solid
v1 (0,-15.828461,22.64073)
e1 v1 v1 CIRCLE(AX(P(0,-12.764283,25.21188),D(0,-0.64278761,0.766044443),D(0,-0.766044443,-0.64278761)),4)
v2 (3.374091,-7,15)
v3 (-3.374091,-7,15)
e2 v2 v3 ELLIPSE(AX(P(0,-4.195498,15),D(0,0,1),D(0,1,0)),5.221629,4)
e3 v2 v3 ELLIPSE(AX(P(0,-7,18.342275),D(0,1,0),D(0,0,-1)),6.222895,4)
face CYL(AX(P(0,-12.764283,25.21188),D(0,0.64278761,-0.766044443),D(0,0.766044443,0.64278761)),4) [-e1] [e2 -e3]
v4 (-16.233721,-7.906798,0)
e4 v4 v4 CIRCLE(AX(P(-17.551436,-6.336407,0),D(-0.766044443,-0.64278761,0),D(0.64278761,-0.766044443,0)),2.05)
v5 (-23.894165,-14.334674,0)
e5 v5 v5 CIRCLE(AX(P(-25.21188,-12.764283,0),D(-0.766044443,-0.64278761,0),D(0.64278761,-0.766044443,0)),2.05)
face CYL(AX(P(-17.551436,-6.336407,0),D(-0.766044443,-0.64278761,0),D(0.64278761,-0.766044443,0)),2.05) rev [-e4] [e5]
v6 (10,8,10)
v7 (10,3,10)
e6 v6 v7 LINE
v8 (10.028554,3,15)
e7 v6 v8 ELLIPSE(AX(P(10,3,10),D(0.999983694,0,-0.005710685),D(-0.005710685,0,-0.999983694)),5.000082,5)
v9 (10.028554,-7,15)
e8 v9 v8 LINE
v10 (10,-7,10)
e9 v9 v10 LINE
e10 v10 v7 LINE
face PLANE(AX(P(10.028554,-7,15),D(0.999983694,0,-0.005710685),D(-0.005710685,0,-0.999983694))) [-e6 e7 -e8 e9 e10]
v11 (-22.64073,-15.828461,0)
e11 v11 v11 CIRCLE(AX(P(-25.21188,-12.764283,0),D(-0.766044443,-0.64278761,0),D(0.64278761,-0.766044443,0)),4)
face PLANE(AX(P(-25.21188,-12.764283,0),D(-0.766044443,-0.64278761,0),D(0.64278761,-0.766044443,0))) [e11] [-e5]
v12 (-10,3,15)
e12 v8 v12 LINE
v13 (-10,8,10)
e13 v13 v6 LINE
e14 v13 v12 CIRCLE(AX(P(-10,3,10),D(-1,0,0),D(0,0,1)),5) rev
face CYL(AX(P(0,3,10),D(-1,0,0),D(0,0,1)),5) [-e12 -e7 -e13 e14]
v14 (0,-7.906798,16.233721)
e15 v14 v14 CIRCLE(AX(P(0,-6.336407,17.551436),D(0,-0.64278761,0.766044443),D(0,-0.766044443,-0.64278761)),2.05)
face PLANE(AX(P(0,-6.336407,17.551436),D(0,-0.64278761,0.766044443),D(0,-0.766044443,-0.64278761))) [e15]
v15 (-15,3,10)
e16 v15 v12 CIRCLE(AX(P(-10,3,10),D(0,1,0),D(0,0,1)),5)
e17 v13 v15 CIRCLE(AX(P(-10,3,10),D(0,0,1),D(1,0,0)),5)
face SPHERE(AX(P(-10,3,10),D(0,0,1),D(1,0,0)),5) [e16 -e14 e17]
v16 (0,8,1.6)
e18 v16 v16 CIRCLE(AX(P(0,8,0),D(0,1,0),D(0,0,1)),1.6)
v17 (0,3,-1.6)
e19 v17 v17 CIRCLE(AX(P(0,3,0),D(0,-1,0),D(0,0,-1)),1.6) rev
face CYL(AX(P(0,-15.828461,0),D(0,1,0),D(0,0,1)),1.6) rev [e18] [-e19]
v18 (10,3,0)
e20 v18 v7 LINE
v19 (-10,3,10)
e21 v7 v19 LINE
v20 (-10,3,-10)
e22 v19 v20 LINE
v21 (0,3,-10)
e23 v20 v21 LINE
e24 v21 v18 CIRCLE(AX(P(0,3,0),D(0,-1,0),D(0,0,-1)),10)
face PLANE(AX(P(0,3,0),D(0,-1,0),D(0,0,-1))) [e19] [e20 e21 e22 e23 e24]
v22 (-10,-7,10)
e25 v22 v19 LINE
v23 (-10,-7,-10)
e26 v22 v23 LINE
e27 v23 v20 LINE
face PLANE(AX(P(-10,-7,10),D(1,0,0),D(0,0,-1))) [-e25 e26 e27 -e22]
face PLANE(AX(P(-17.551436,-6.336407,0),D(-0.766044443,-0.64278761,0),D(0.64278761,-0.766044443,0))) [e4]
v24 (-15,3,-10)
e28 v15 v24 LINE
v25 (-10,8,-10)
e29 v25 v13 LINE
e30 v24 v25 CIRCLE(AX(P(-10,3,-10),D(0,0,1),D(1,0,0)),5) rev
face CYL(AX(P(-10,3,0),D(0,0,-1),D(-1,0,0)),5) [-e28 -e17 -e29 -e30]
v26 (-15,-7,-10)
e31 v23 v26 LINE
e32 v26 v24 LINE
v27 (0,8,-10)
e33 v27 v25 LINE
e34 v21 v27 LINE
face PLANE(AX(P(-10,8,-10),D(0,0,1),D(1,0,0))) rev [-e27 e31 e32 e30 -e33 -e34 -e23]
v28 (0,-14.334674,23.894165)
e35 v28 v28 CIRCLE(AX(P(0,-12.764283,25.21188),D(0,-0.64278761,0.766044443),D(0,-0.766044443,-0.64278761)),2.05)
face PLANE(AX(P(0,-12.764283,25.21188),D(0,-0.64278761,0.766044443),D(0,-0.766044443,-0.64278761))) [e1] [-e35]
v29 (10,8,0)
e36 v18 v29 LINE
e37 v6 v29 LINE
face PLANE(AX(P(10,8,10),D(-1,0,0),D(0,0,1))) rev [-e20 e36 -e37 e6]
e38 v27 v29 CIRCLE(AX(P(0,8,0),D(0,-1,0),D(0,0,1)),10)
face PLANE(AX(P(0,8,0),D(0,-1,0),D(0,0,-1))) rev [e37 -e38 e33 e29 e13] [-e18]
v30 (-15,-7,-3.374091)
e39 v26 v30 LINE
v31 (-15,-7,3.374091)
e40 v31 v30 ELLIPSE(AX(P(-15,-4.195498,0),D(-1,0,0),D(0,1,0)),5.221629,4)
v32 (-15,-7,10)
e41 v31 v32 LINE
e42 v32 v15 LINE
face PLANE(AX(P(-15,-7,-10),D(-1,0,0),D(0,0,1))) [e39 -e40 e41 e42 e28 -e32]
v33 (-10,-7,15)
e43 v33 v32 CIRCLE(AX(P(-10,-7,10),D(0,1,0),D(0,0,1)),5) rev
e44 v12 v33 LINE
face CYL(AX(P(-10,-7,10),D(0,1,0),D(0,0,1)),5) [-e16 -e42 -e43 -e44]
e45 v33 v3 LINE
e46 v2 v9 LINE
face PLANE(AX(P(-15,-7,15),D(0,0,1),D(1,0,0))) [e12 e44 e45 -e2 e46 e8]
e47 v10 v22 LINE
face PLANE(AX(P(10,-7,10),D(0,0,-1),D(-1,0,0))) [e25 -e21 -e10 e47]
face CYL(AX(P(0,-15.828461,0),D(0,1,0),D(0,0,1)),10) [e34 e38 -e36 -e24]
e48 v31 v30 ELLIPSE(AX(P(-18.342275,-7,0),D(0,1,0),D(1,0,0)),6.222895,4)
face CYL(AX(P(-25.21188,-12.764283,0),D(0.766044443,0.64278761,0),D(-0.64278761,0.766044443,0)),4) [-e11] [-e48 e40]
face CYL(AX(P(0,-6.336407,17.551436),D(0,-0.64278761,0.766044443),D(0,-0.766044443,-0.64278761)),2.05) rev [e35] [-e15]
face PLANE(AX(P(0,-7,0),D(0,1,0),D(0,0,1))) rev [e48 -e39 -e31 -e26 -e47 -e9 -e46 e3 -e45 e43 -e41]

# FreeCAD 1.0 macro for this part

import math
import FreeCAD as App
import Part
import Sketcher
Q = App.Units.Quantity


def edges_at(feature, points):
    """Names of the edges that pass closest to the given points."""
    edges = feature.Shape.Edges
    near = lambda p: min(range(len(edges)), key=lambda i: edges[i].distToShape(Part.Vertex(*p))[0])
    return sorted({f"Edge{near(p) + 1}" for p in points})


def add_polygon(sketch, points):
    """Adds a closed chain of lines whose ends are joined by coincident constraints."""
    first, n = sketch.GeometryCount, len(points)
    for a, b in zip(points, points[1:] + points[:1]):
        sketch.addGeometry(Part.LineSegment(App.Vector(*a, 0), App.Vector(*b, 0)), False)
    for i in range(n):
        sketch.addConstraint(Sketcher.Constraint("Coincident", first + i, 2, first + (i + 1) % n, 1))

doc = App.newDocument("Part")
body = doc.addObject("PartDesign::Body", "Body")

# Sketch on XZ plane
sketch1 = doc.addObject("Sketcher::SketchObject", "Sketch")
body.addObject(sketch1)
sketch1.AttachmentSupport = (doc.XZ_Plane, [""])
sketch1.MapMode = "FlatFace"
add_polygon(sketch1, [(-10, -10), (-10, 10), (10, 10), (10, -10)])  # lines 0-3
sketch1.addConstraint([
    Sketcher.Constraint("Vertical", 0),
    Sketcher.Constraint("Horizontal", 1),
    Sketcher.Constraint("Vertical", 2),
    Sketcher.Constraint("Horizontal", 3),
    Sketcher.Constraint("Symmetric", 0, 2, 2, 2, -1, 1),
    Sketcher.Constraint("Equal", 3, 0),
    Sketcher.Constraint("DistanceX", 1, 1, 1, 2, Q("20 mm")),
])
pad1 = doc.addObject("PartDesign::Pad", "Pad")
body.addObject(pad1)
pad1.Profile = sketch1
pad1.Length = 8
pad1.Reversed = True

# Sketch on an angled plane
sketch2 = doc.addObject("Sketcher::SketchObject", "Sketch001")
body.addObject(sketch2)
sketch2.Placement = App.Placement(App.Vector(0, -1.618631, 1.92901), App.Rotation(App.Vector(1, 0, 0), App.Vector(0, 0.766044443, 0.64278761), App.Vector(0, -0.64278761, 0.766044443), "ZXY"))
sketch2.addGeometry(Part.Circle(App.Vector(0, 6.4, 0), App.Vector(0, 0, 1), 4), False)
sketch2.addConstraint([
    Sketcher.Constraint("PointOnObject", 0, 3, -2),
    Sketcher.Constraint("Diameter", 0, Q("8 mm")),
    Sketcher.Constraint("DistanceY", -1, 1, 0, 3, Q("6.427876 mm")),
])
pad2 = doc.addObject("PartDesign::Pad", "Pad001")
body.addObject(pad2)
pad2.Profile = sketch2
pad2.Length = 25

# Sketch on an angled plane
sketch3 = doc.addObject("Sketcher::SketchObject", "Sketch002")
body.addObject(sketch3)
sketch3.Placement = App.Placement(App.Vector(-1.92901, -1.618631, 0), App.Rotation(App.Vector(0, 0, 1), App.Vector(-0.64278761, 0.766044443, 0), App.Vector(-0.766044443, -0.64278761, 0), "ZXY"))
sketch3.addGeometry(Part.Circle(App.Vector(0, 6.4, 0), App.Vector(0, 0, 1), 4), False)
sketch3.addConstraint([
    Sketcher.Constraint("PointOnObject", 0, 3, -2),
    Sketcher.Constraint("Diameter", 0, Q("8 mm")),
    Sketcher.Constraint("DistanceY", -1, 1, 0, 3, Q("6.427876 mm")),
])
pad3 = doc.addObject("PartDesign::Pad", "Pad002")
body.addObject(pad3)
pad3.Profile = sketch3
pad3.Length = 25

# Sketch on XZ plane
sketch4 = doc.addObject("Sketcher::SketchObject", "Sketch003")
body.addObject(sketch4)
sketch4.AttachmentSupport = (doc.XZ_Plane, [""])
sketch4.MapMode = "FlatFace"
sketch4.AttachmentOffset = App.Placement(App.Vector(0, 0, -8), App.Rotation())
sketch4.addGeometry([
    Part.Circle(App.Vector(0, 0, 0), App.Vector(0, 0, 1), 1.6),
    Part.LineSegment(App.Vector(10, -10, 0), App.Vector(0, -10, 0)),
    Part.ArcOfCircle(Part.Circle(App.Vector(0, 0, 0), App.Vector(0, 0, 1), 10), math.radians(-90), math.radians(0)),
    Part.LineSegment(App.Vector(10, 0, 0), App.Vector(10, -10, 0)),
], False)
sketch4.addConstraint([
    Sketcher.Constraint("Tangent", 1, 2, 2, 1),
    Sketcher.Constraint("Tangent", 2, 2, 3, 1),
    Sketcher.Constraint("Coincident", 3, 2, 1, 1),
    Sketcher.Constraint("Horizontal", 1),
    Sketcher.Constraint("Vertical", 3),
    Sketcher.Constraint("Coincident", 0, 3, -1, 1),
    Sketcher.Constraint("Coincident", 2, 3, -1, 1),
    Sketcher.Constraint("Radius", 2, Q("10 mm")),
    Sketcher.Constraint("Diameter", 0, Q("3.2 mm")),
])
pocket1 = doc.addObject("PartDesign::Pocket", "Pocket")
body.addObject(pocket1)
pocket1.Profile = sketch4
pocket1.Type = "ThroughAll"
pocket1.Reversed = True

# Sketch on XZ plane
sketch5 = doc.addObject("Sketcher::SketchObject", "Sketch004")
body.addObject(sketch5)
sketch5.AttachmentSupport = (doc.XZ_Plane, [""])
sketch5.MapMode = "FlatFace"
sketch5.AttachmentOffset = App.Placement(App.Vector(0, 0, -8), App.Rotation())
add_polygon(sketch5, [(-10, -10), (-15, -10), (-15, 15), (10.028554, 15), (10, 10), (-10, 10)])  # lines 0-5
sketch5.addConstraint([
    Sketcher.Constraint("Horizontal", 0),
    Sketcher.Constraint("Vertical", 1),
    Sketcher.Constraint("Horizontal", 2),
    Sketcher.Constraint("Horizontal", 4),
    Sketcher.Constraint("Vertical", 5),
    Sketcher.Constraint("Symmetric", 3, 2, 5, 2, -1, 1),
    Sketcher.Constraint("Equal", 4, 5),
    Sketcher.Constraint("DistanceX", 0, 2, 0, 1, Q("5 mm")),
    Sketcher.Constraint("DistanceX", 4, 2, 4, 1, Q("20 mm")),
    Sketcher.Constraint("DistanceY", 1, 1, 1, 2, Q("25 mm")),
    Sketcher.Constraint("Distance", 3, Q("5.000082 mm")),
])
pad4 = doc.addObject("PartDesign::Pad", "Pad003")
body.addObject(pad4)
pad4.Profile = sketch5
pad4.Length = 15

# Sketch on XZ plane
sketch6 = doc.addObject("Sketcher::SketchObject", "Sketch005")
body.addObject(sketch6)
sketch6.AttachmentSupport = (doc.XZ_Plane, [""])
sketch6.MapMode = "FlatFace"
sketch6.AttachmentOffset = App.Placement(App.Vector(0, 0, -3), App.Rotation())
sketch6.addGeometry([
    Part.LineSegment(App.Vector(10, 0, 0), App.Vector(10, 10, 0)),  # 0
    Part.LineSegment(App.Vector(10, 10, 0), App.Vector(-10, 10, 0)),  # 1
    Part.LineSegment(App.Vector(-10, 10, 0), App.Vector(-10, -10, 0)),  # 2
    Part.LineSegment(App.Vector(-10, -10, 0), App.Vector(0, -10, 0)),  # 3
    Part.ArcOfCircle(Part.Circle(App.Vector(0, 0, 0), App.Vector(0, 0, 1), 10), math.radians(-90), math.radians(0)),  # 4
], False)
sketch6.addConstraint([
    Sketcher.Constraint("Coincident", 0, 2, 1, 1),
    Sketcher.Constraint("Coincident", 1, 2, 2, 1),
    Sketcher.Constraint("Coincident", 2, 2, 3, 1),
    Sketcher.Constraint("Tangent", 3, 2, 4, 1),
    Sketcher.Constraint("Tangent", 4, 2, 0, 1),
    Sketcher.Constraint("Vertical", 0),
    Sketcher.Constraint("Horizontal", 1),
    Sketcher.Constraint("Vertical", 2),
    Sketcher.Constraint("Horizontal", 3),
    Sketcher.Constraint("Coincident", 4, 3, -1, 1),
    Sketcher.Constraint("Symmetric", 0, 2, 2, 2, -1, 1),
    Sketcher.Constraint("Radius", 4, Q("10 mm")),
])
pocket2 = doc.addObject("PartDesign::Pocket", "Pocket001")
body.addObject(pocket2)
pocket2.Profile = sketch6
pocket2.Length = 10
pocket2.Reversed = True

# Sketch on an angled plane
sketch7 = doc.addObject("Sketcher::SketchObject", "Sketch006")
body.addObject(sketch7)
sketch7.Placement = App.Placement(App.Vector(-21.080121, -17.688322, 0), App.Rotation(App.Vector(0, 0, 1), App.Vector(-0.64278761, 0.766044443, 0), App.Vector(-0.766044443, -0.64278761, 0), "ZXY"))
sketch7.addGeometry(Part.Circle(App.Vector(0, 6.4, 0), App.Vector(0, 0, 1), 2), False)
sketch7.addConstraint([
    Sketcher.Constraint("PointOnObject", 0, 3, -2),
    Sketcher.Constraint("Diameter", 0, Q("4.1 mm")),
    Sketcher.Constraint("DistanceY", -1, 1, 0, 3, Q("6.427876 mm")),
])
pocket3 = doc.addObject("PartDesign::Pocket", "Pocket002")
body.addObject(pocket3)
pocket3.Profile = sketch7
pocket3.Length = 10

# Sketch on an angled plane
sketch8 = doc.addObject("Sketcher::SketchObject", "Sketch007")
body.addObject(sketch8)
sketch8.Placement = App.Placement(App.Vector(0, -17.688322, 21.080121), App.Rotation(App.Vector(1, 0, 0), App.Vector(0, 0.766044443, 0.64278761), App.Vector(0, -0.64278761, 0.766044443), "ZXY"))
sketch8.addGeometry(Part.Circle(App.Vector(0, 6.4, 0), App.Vector(0, 0, 1), 2), False)
sketch8.addConstraint([
    Sketcher.Constraint("PointOnObject", 0, 3, -2),
    Sketcher.Constraint("Diameter", 0, Q("4.1 mm")),
    Sketcher.Constraint("DistanceY", -1, 1, 0, 3, Q("6.427876 mm")),
])
pocket4 = doc.addObject("PartDesign::Pocket", "Pocket003")
body.addObject(pocket4)
pocket4.Profile = sketch8
pocket4.Length = 10
doc.recompute()

fillet = doc.addObject("PartDesign::Fillet", "Fillet")
body.addObject(fillet)
fillet.Base = (pocket4, edges_at(pocket4, [(-2.486, 8, 15), (-15, 8, 2.5), (-15, 0.5, 15)]))
fillet.Radius = 5

doc.recompute()
